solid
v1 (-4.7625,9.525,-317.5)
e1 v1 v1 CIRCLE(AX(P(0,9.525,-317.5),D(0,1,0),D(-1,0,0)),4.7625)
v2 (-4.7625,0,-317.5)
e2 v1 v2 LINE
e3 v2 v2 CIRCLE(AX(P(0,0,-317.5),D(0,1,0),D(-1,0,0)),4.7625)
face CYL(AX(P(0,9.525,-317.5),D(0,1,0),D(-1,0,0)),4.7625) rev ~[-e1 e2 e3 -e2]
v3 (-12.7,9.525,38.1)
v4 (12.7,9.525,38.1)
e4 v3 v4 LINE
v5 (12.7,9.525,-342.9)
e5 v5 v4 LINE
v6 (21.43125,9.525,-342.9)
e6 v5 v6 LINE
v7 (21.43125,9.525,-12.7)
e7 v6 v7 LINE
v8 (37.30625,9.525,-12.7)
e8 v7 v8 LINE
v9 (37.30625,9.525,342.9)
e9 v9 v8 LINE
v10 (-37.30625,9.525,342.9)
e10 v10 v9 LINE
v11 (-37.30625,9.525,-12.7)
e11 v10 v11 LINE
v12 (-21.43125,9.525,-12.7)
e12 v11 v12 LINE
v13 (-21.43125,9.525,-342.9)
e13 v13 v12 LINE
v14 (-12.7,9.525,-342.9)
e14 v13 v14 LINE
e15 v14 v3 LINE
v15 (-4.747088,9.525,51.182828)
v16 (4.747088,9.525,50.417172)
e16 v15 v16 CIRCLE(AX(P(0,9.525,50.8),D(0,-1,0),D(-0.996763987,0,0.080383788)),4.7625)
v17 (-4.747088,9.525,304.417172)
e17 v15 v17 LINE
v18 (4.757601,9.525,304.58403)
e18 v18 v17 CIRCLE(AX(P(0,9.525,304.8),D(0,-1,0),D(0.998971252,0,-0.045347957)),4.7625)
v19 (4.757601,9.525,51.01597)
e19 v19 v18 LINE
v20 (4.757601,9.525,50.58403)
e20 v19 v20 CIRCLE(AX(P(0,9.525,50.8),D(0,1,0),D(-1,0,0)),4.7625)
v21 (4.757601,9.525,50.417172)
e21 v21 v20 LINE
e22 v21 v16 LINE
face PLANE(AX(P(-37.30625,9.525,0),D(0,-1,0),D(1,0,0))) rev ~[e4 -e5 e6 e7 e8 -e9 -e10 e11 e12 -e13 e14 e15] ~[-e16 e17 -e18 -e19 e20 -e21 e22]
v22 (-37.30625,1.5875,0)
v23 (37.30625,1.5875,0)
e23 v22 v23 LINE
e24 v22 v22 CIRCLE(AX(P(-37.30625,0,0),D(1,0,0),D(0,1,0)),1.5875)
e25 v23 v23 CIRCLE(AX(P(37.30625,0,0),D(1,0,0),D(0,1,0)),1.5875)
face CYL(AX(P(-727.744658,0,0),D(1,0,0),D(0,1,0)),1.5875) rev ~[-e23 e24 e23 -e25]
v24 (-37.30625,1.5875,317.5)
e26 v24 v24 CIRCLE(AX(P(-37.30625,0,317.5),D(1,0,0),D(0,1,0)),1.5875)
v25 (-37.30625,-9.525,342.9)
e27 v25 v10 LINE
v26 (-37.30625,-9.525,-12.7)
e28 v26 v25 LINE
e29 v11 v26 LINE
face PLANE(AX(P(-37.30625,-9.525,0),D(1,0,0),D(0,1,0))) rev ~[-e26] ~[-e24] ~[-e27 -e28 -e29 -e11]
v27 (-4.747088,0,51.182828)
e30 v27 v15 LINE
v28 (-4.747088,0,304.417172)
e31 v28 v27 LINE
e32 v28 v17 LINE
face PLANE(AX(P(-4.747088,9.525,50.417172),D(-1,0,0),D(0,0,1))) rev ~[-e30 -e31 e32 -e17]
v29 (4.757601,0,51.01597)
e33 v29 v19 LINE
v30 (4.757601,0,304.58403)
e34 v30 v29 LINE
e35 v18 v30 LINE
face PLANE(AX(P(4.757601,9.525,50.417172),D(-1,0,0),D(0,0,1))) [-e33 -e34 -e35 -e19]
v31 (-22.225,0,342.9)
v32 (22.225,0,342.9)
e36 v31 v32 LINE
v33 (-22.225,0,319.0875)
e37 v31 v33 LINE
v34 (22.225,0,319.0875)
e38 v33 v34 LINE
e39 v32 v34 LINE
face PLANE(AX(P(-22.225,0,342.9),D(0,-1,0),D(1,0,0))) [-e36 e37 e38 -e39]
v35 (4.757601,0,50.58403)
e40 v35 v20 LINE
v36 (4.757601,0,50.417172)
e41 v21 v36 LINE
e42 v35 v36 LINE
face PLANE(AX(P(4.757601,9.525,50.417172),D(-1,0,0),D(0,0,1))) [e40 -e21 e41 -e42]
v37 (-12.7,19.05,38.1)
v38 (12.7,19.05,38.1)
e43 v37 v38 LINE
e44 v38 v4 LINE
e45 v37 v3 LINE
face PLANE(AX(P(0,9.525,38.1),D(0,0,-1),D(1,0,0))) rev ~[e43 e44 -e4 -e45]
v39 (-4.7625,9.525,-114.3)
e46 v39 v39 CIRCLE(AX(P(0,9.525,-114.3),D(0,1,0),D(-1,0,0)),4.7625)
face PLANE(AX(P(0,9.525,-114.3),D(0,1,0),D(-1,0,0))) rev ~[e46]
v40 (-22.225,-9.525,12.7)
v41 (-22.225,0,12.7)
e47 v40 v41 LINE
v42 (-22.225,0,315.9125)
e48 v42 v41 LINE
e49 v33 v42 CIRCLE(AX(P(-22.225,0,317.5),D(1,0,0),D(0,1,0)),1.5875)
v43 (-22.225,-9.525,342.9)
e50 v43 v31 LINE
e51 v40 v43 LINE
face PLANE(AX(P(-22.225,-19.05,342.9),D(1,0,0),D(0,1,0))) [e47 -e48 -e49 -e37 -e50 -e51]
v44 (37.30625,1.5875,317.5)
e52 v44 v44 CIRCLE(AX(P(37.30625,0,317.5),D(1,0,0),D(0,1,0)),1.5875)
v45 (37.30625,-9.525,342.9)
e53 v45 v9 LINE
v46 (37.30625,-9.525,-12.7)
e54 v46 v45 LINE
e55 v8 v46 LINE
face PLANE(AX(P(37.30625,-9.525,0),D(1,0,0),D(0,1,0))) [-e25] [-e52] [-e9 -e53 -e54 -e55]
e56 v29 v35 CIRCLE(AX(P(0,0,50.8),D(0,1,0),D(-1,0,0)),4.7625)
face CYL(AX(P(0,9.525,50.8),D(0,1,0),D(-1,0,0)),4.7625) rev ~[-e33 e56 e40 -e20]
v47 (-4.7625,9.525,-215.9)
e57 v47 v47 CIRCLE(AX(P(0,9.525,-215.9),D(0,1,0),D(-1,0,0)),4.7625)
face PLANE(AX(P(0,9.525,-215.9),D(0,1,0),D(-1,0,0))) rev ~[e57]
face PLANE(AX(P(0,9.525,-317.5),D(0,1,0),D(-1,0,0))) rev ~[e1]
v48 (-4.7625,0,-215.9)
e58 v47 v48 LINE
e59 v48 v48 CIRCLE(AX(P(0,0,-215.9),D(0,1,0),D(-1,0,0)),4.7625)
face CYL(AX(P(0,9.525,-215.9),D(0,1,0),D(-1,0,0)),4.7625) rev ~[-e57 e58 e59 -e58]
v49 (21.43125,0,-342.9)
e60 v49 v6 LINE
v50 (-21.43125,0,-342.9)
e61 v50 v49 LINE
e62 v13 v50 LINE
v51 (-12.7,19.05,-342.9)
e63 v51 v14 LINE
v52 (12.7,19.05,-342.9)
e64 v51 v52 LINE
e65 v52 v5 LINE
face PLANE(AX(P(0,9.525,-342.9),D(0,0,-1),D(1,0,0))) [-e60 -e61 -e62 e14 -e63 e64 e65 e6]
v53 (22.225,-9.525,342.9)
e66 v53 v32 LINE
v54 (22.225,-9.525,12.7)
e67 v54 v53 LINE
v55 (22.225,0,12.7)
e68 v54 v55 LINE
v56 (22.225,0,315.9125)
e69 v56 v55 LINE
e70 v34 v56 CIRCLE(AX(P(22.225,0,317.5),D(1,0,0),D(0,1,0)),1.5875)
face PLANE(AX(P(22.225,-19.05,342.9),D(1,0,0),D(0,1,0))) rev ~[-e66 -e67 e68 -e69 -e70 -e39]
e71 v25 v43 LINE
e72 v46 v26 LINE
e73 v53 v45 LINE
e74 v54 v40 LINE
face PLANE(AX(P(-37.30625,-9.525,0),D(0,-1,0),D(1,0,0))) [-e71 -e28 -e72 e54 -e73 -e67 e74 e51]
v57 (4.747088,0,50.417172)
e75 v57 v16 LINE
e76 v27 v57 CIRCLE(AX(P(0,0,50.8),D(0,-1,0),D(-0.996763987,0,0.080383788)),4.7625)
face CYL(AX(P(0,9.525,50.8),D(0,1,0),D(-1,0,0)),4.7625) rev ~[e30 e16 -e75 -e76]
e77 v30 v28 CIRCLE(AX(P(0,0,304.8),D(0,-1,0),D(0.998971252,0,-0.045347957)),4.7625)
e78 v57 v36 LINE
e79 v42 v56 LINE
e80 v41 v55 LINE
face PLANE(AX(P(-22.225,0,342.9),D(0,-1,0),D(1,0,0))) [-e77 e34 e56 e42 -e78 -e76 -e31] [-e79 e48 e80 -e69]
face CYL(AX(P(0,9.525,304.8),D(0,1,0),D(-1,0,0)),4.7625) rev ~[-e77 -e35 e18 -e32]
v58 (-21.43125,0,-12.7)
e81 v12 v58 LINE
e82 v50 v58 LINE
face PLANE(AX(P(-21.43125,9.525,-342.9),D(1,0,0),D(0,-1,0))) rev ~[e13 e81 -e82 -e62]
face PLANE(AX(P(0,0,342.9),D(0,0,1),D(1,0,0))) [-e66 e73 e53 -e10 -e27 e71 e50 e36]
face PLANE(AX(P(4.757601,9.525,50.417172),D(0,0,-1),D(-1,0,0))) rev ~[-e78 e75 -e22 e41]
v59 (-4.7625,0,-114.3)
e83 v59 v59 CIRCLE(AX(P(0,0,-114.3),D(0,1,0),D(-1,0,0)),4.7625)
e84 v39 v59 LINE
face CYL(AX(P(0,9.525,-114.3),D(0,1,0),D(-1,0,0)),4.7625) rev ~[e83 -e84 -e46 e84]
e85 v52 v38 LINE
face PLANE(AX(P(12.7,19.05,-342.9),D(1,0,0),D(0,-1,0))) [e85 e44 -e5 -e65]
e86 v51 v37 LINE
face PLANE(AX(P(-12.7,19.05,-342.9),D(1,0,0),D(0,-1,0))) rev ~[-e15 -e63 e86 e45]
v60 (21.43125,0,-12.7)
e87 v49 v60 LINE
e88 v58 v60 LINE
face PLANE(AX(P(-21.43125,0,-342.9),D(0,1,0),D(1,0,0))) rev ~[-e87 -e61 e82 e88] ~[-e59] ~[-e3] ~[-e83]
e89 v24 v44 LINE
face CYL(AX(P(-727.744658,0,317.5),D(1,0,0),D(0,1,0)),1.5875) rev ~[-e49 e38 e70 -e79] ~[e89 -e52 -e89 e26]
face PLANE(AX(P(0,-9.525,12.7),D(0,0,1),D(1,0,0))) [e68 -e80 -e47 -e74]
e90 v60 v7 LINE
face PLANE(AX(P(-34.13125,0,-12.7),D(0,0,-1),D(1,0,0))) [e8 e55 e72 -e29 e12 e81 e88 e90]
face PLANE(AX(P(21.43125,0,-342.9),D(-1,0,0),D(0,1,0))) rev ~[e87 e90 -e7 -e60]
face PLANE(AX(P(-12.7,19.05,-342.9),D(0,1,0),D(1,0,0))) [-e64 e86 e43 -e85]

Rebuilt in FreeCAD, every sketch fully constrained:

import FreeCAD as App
import Part
import Sketcher
from FreeCAD import Vector
Q = App.Units.Quantity

doc = App.newDocument("Part")
params = doc.addObject("Spreadsheet::Sheet", "Params")
for row, (alias, value) in enumerate([
    ("sketch1_height", "0.75 in"),
    ("sketch1_width", "2.9375 in"),
    ("pad1_length", "27 in"),
    ("sketch2_width", "1 in"),
    ("sketch2_height", "0.75 in"),
    ("pad2_length", "15 in"),
    ("sketch3_width", "1.75 in"),
    ("sketch3_height", "0.75 in"),
    ("pocket1_length", "13 in"),
    ("sketch4_height", "0.75 in"),
    ("sketch4_width", "0.625 in"),
    ("sketch4_width2", "1.6875 in"),
    ("pocket2_length", "13 in"),
    ("sketch5_diameter", "0.375 in"),
    ("sketch7_diameter", "0.125 in"),
    ("hole_diameter", "0.125 in"),
], start=1):
    params.set(f"A{row}", alias)
    params.set(f"B{row}", "=" + value)
    params.setAlias(f"B{row}", alias)

body = doc.addObject("PartDesign::Body", "Body")

# Sketch on XY plane
sketch1 = body.newObject("Sketcher::SketchObject", "Sketch")
sketch1.AttachmentSupport = (doc.getObject("XY_Plane"), [""])
sketch1.MapMode = "FlatFace"
sketch1.addGeometry(Part.LineSegment(Vector(-37, 10, 0), Vector(-37, -10, 0)), False)
sketch1.addGeometry(Part.LineSegment(Vector(-37, -10, 0), Vector(37, -10, 0)), False)
sketch1.addGeometry(Part.LineSegment(Vector(37, -10, 0), Vector(37, 10, 0)), False)
sketch1.addGeometry(Part.LineSegment(Vector(37, 10, 0), Vector(-37, 10, 0)), False)
sketch1.addConstraint(Sketcher.Constraint("Coincident", 0, 2, 1, 1))
sketch1.addConstraint(Sketcher.Constraint("Coincident", 1, 2, 2, 1))
sketch1.addConstraint(Sketcher.Constraint("Coincident", 2, 2, 3, 1))
sketch1.addConstraint(Sketcher.Constraint("Coincident", 3, 2, 0, 1))
sketch1.addConstraint(Sketcher.Constraint("Vertical", 0))
sketch1.addConstraint(Sketcher.Constraint("Horizontal", 1))
sketch1.addConstraint(Sketcher.Constraint("Vertical", 2))
sketch1.addConstraint(Sketcher.Constraint("Horizontal", 3))
sketch1.addConstraint(Sketcher.Constraint("Symmetric", 0, 2, 2, 2, -1, 1))
sketch1.addConstraint(Sketcher.Constraint("DistanceY", 0, 2, 0, 1, Q("0.75 in")))
sketch1.addConstraint(Sketcher.Constraint("DistanceX", 1, 1, 1, 2, Q("2.9375 in")))
sketch1.setExpression("Constraints[9]", "Params.sketch1_height")
sketch1.setExpression("Constraints[10]", "Params.sketch1_width")
pad1 = body.newObject("PartDesign::Pad", "Pad")
pad1.Profile = sketch1
pad1.setExpression("Length", "Params.pad1_length")
pad1.Midplane = True

# Sketch on XY plane
sketch2 = body.newObject("Sketcher::SketchObject", "Sketch001")
sketch2.AttachmentSupport = (doc.getObject("XY_Plane"), [""])
sketch2.MapMode = "FlatFace"
sketch2.AttachmentOffset = App.Placement(Vector(0, 0, -13.5 * 25.4), App.Rotation())
sketch2.addGeometry(Part.LineSegment(Vector(-13, 0, 0), Vector(-13, 19, 0)), False)
sketch2.addGeometry(Part.LineSegment(Vector(-13, 19, 0), Vector(13, 19, 0)), False)
sketch2.addGeometry(Part.LineSegment(Vector(13, 19, 0), Vector(13, 0, 0)), False)
sketch2.addGeometry(Part.LineSegment(Vector(13, 0, 0), Vector(-13, 0, 0)), False)
sketch2.addConstraint(Sketcher.Constraint("Coincident", 0, 2, 1, 1))
sketch2.addConstraint(Sketcher.Constraint("Coincident", 1, 2, 2, 1))
sketch2.addConstraint(Sketcher.Constraint("Coincident", 2, 2, 3, 1))
sketch2.addConstraint(Sketcher.Constraint("Coincident", 3, 2, 0, 1))
sketch2.addConstraint(Sketcher.Constraint("Vertical", 0))
sketch2.addConstraint(Sketcher.Constraint("Horizontal", 1))
sketch2.addConstraint(Sketcher.Constraint("Vertical", 2))
sketch2.addConstraint(Sketcher.Constraint("Horizontal", 3))
sketch2.addConstraint(Sketcher.Constraint("Symmetric", 2, 2, 3, 2, -1, 1))
sketch2.addConstraint(Sketcher.Constraint("DistanceX", 1, 1, 1, 2, Q("1 in")))
sketch2.addConstraint(Sketcher.Constraint("DistanceY", 0, 1, 0, 2, Q("0.75 in")))
sketch2.setExpression("Constraints[9]", "Params.sketch2_width")
sketch2.setExpression("Constraints[10]", "Params.sketch2_height")
pad2 = body.newObject("PartDesign::Pad", "Pad001")
pad2.Profile = sketch2
pad2.setExpression("Length", "Params.pad2_length")

# Sketch on XY plane
sketch3 = body.newObject("Sketcher::SketchObject", "Sketch002")
sketch3.AttachmentSupport = (doc.getObject("XY_Plane"), [""])
sketch3.MapMode = "FlatFace"
sketch3.AttachmentOffset = App.Placement(Vector(0, 0, 13.5 * 25.4), App.Rotation())
sketch3.addGeometry(Part.LineSegment(Vector(-22, 0, 0), Vector(-22, -19, 0)), False)
sketch3.addGeometry(Part.LineSegment(Vector(-22, -19, 0), Vector(22, -19, 0)), False)
sketch3.addGeometry(Part.LineSegment(Vector(22, -19, 0), Vector(22, 0, 0)), False)
sketch3.addGeometry(Part.LineSegment(Vector(22, 0, 0), Vector(-22, 0, 0)), False)
sketch3.addConstraint(Sketcher.Constraint("Coincident", 0, 2, 1, 1))
sketch3.addConstraint(Sketcher.Constraint("Coincident", 1, 2, 2, 1))
sketch3.addConstraint(Sketcher.Constraint("Coincident", 2, 2, 3, 1))
sketch3.addConstraint(Sketcher.Constraint("Coincident", 3, 2, 0, 1))
sketch3.addConstraint(Sketcher.Constraint("Vertical", 0))
sketch3.addConstraint(Sketcher.Constraint("Horizontal", 1))
sketch3.addConstraint(Sketcher.Constraint("Vertical", 2))
sketch3.addConstraint(Sketcher.Constraint("Horizontal", 3))
sketch3.addConstraint(Sketcher.Constraint("Symmetric", 2, 2, 3, 2, -1, 1))
sketch3.addConstraint(Sketcher.Constraint("DistanceX", 1, 1, 1, 2, Q("1.75 in")))
sketch3.addConstraint(Sketcher.Constraint("DistanceY", 0, 2, 0, 1, Q("0.75 in")))
sketch3.setExpression("Constraints[9]", "Params.sketch3_width")
sketch3.setExpression("Constraints[10]", "Params.sketch3_height")
pocket1 = body.newObject("PartDesign::Pocket", "Pocket")
pocket1.Profile = sketch3
pocket1.setExpression("Length", "Params.pocket1_length")

# Sketch on XY plane
sketch4 = body.newObject("Sketcher::SketchObject", "Sketch003")
sketch4.AttachmentSupport = (doc.getObject("XY_Plane"), [""])
sketch4.MapMode = "FlatFace"
sketch4.AttachmentOffset = App.Placement(Vector(0, 0, -13.5 * 25.4), App.Rotation())
sketch4.addGeometry(Part.LineSegment(Vector(-37, -10, 0), Vector(-37, 10, 0)), False)
sketch4.addGeometry(Part.LineSegment(Vector(-37, 10, 0), Vector(-21, 10, 0)), False)
sketch4.addGeometry(Part.LineSegment(Vector(-21, 10, 0), Vector(-21, 0, 0)), False)
sketch4.addGeometry(Part.LineSegment(Vector(-21, 0, 0), Vector(21, 0, 0)), False)
sketch4.addGeometry(Part.LineSegment(Vector(21, 0, 0), Vector(21, 10, 0)), False)
sketch4.addGeometry(Part.LineSegment(Vector(21, 10, 0), Vector(37, 10, 0)), False)
sketch4.addGeometry(Part.LineSegment(Vector(37, 10, 0), Vector(37, -10, 0)), False)
sketch4.addGeometry(Part.LineSegment(Vector(37, -10, 0), Vector(-37, -10, 0)), False)
sketch4.addConstraint(Sketcher.Constraint("Coincident", 0, 2, 1, 1))
sketch4.addConstraint(Sketcher.Constraint("Coincident", 1, 2, 2, 1))
sketch4.addConstraint(Sketcher.Constraint("Coincident", 2, 2, 3, 1))
sketch4.addConstraint(Sketcher.Constraint("Coincident", 3, 2, 4, 1))
sketch4.addConstraint(Sketcher.Constraint("Coincident", 4, 2, 5, 1))
sketch4.addConstraint(Sketcher.Constraint("Coincident", 5, 2, 6, 1))
sketch4.addConstraint(Sketcher.Constraint("Coincident", 6, 2, 7, 1))
sketch4.addConstraint(Sketcher.Constraint("Coincident", 7, 2, 0, 1))
sketch4.addConstraint(Sketcher.Constraint("Vertical", 0))
sketch4.addConstraint(Sketcher.Constraint("Horizontal", 1))
sketch4.addConstraint(Sketcher.Constraint("Vertical", 2))
sketch4.addConstraint(Sketcher.Constraint("Horizontal", 3))
sketch4.addConstraint(Sketcher.Constraint("Vertical", 4))
sketch4.addConstraint(Sketcher.Constraint("Horizontal", 5))
sketch4.addConstraint(Sketcher.Constraint("Vertical", 6))
sketch4.addConstraint(Sketcher.Constraint("Horizontal", 7))
sketch4.addConstraint(Sketcher.Constraint("Symmetric", 2, 2, 3, 2, -1, 1))
sketch4.addConstraint(Sketcher.Constraint("Symmetric", 0, 2, 6, 2, -1, 1))
sketch4.addConstraint(Sketcher.Constraint("Horizontal", 1, 2, 4, 2))
sketch4.addConstraint(Sketcher.Constraint("DistanceY", 0, 1, 0, 2, Q("0.75 in")))
sketch4.addConstraint(Sketcher.Constraint("DistanceX", 1, 1, 1, 2, Q("0.625 in")))
sketch4.addConstraint(Sketcher.Constraint("DistanceX", 3, 1, 3, 2, Q("1.6875 in")))
sketch4.setExpression("Constraints[19]", "Params.sketch4_height")
sketch4.setExpression("Constraints[20]", "Params.sketch4_width")
sketch4.setExpression("Constraints[21]", "Params.sketch4_width2")
pocket2 = body.newObject("PartDesign::Pocket", "Pocket001")
pocket2.Profile = sketch4
pocket2.setExpression("Length", "Params.pocket2_length")
pocket2.Reversed = True

# Sketch on XZ plane
sketch5 = body.newObject("Sketcher::SketchObject", "Sketch004")
sketch5.AttachmentSupport = (doc.getObject("XZ_Plane"), [""])
sketch5.MapMode = "FlatFace"
sketch5.AttachmentOffset = App.Placement(Vector(0, 0, -0.375 * 25.4), App.Rotation())
sketch5.addGeometry(Part.Circle(Vector(0, 304.8, 0), Vector(0, 0, 1), 4.8), False)
sketch5.addGeometry(Part.Circle(Vector(0, -317.5, 0), Vector(0, 0, 1), 4.8), False)
sketch5.addGeometry(Part.Circle(Vector(0, -215.9, 0), Vector(0, 0, 1), 4.8), False)
sketch5.addGeometry(Part.Circle(Vector(0, -114.3, 0), Vector(0, 0, 1), 4.8), False)
sketch5.addGeometry(Part.Circle(Vector(0, 50.8, 0), Vector(0, 0, 1), 4.8), False)
sketch5.addConstraint(Sketcher.Constraint("Equal", 0, 1))
sketch5.addConstraint(Sketcher.Constraint("Equal", 1, 2))
sketch5.addConstraint(Sketcher.Constraint("Equal", 2, 3))
sketch5.addConstraint(Sketcher.Constraint("Equal", 3, 4))
sketch5.addConstraint(Sketcher.Constraint("PointOnObject", 0, 3, -2))
sketch5.addConstraint(Sketcher.Constraint("PointOnObject", 1, 3, -2))
sketch5.addConstraint(Sketcher.Constraint("PointOnObject", 2, 3, -2))
sketch5.addConstraint(Sketcher.Constraint("PointOnObject", 3, 3, -2))
sketch5.addConstraint(Sketcher.Constraint("PointOnObject", 4, 3, -2))
sketch5.addConstraint(Sketcher.Constraint("Diameter", 0, Q("0.375 in")))
sketch5.addConstraint(Sketcher.Constraint("DistanceY", -1, 1, 0, 3, Q("12 in")))
sketch5.addConstraint(Sketcher.Constraint("DistanceY", -1, 1, 4, 3, Q("2 in")))
sketch5.addConstraint(Sketcher.Constraint("DistanceY", 1, 3, 2, 3, Q("4 in")))
sketch5.addConstraint(Sketcher.Constraint("DistanceY", 2, 3, 3, 3, Q("4 in")))
sketch5.addConstraint(Sketcher.Constraint("DistanceY", 1, 3, -1, 1, Q("12.5 in")))
sketch5.setExpression("Constraints[9]", "Params.sketch5_diameter")
pocket3 = body.newObject("PartDesign::Pocket", "Pocket002")
pocket3.Profile = sketch5
pocket3.Type = "ThroughAll"
pocket3.Reversed = True

# Sketch on XZ plane
sketch6 = body.newObject("Sketcher::SketchObject", "Sketch005")
sketch6.AttachmentSupport = (doc.getObject("XZ_Plane"), [""])
sketch6.MapMode = "FlatFace"
sketch6.AttachmentOffset = App.Placement(Vector(0, 0, -0.375 * 25.4), App.Rotation())
sketch6.addGeometry(Part.LineSegment(Vector(5, 305, 0), Vector(5, 50, 0)), False)
sketch6.addGeometry(Part.LineSegment(Vector(5, 50, 0), Vector(-5, 50, 0)), False)
sketch6.addGeometry(Part.LineSegment(Vector(-5, 50, 0), Vector(-5, 305, 0)), False)
sketch6.addGeometry(Part.LineSegment(Vector(-5, 305, 0), Vector(5, 305, 0)), False)
sketch6.addConstraint(Sketcher.Constraint("Coincident", 0, 2, 1, 1))
sketch6.addConstraint(Sketcher.Constraint("Coincident", 1, 2, 2, 1))
sketch6.addConstraint(Sketcher.Constraint("Coincident", 2, 2, 3, 1))
sketch6.addConstraint(Sketcher.Constraint("Coincident", 3, 2, 0, 1))
sketch6.addConstraint(Sketcher.Constraint("Vertical", 0))
sketch6.addConstraint(Sketcher.Constraint("Horizontal", 1))
sketch6.addConstraint(Sketcher.Constraint("Vertical", 2))
sketch6.addConstraint(Sketcher.Constraint("Horizontal", 3))
sketch6.addConstraint(Sketcher.Constraint("DistanceX", 1, 2, 1, 1, Q("9.504689 mm")))
sketch6.addConstraint(Sketcher.Constraint("DistanceY", 0, 2, 0, 1, Q("254.166858 mm")))
sketch6.addConstraint(Sketcher.Constraint("DistanceX", -1, 1, 0, 2, Q("4.757601 mm")))
sketch6.addConstraint(Sketcher.Constraint("DistanceY", -1, 1, 2, 2, Q("304.58403 mm")))
pocket4 = body.newObject("PartDesign::Pocket", "Pocket003")
pocket4.Profile = sketch6
pocket4.Type = "ThroughAll"
pocket4.Reversed = True

# Sketch on YZ plane
sketch7 = body.newObject("Sketcher::SketchObject", "Sketch006")
sketch7.AttachmentSupport = (doc.getObject("YZ_Plane"), [""])
sketch7.MapMode = "FlatFace"
sketch7.AttachmentOffset = App.Placement(Vector(0, 0, -1.46875 * 25.4), App.Rotation())
sketch7.addGeometry(Part.Circle(Vector(0, 317.5, 0), Vector(0, 0, 1), 1.6), False)
sketch7.addGeometry(Part.Circle(Vector(0, 0, 0), Vector(0, 0, 1), 1.6), False)
sketch7.addConstraint(Sketcher.Constraint("Coincident", 1, 3, -1, 1))
sketch7.addConstraint(Sketcher.Constraint("Equal", 0, 1))
sketch7.addConstraint(Sketcher.Constraint("PointOnObject", 0, 3, -2))
sketch7.addConstraint(Sketcher.Constraint("Diameter", 0, Q("0.125 in")))
sketch7.addConstraint(Sketcher.Constraint("DistanceY", -1, 1, 0, 3, Q("12.5 in")))
sketch7.setExpression("Constraints[3]", "Params.sketch7_diameter")
doc.recompute()
hole = body.newObject("PartDesign::Hole", "Hole")
hole.Profile = sketch7
hole.ThreadType = "None"
hole.setExpression("Diameter", "Params.hole_diameter")
hole.DepthType = "ThroughAll"
hole.Reversed = True

doc.recompute()
